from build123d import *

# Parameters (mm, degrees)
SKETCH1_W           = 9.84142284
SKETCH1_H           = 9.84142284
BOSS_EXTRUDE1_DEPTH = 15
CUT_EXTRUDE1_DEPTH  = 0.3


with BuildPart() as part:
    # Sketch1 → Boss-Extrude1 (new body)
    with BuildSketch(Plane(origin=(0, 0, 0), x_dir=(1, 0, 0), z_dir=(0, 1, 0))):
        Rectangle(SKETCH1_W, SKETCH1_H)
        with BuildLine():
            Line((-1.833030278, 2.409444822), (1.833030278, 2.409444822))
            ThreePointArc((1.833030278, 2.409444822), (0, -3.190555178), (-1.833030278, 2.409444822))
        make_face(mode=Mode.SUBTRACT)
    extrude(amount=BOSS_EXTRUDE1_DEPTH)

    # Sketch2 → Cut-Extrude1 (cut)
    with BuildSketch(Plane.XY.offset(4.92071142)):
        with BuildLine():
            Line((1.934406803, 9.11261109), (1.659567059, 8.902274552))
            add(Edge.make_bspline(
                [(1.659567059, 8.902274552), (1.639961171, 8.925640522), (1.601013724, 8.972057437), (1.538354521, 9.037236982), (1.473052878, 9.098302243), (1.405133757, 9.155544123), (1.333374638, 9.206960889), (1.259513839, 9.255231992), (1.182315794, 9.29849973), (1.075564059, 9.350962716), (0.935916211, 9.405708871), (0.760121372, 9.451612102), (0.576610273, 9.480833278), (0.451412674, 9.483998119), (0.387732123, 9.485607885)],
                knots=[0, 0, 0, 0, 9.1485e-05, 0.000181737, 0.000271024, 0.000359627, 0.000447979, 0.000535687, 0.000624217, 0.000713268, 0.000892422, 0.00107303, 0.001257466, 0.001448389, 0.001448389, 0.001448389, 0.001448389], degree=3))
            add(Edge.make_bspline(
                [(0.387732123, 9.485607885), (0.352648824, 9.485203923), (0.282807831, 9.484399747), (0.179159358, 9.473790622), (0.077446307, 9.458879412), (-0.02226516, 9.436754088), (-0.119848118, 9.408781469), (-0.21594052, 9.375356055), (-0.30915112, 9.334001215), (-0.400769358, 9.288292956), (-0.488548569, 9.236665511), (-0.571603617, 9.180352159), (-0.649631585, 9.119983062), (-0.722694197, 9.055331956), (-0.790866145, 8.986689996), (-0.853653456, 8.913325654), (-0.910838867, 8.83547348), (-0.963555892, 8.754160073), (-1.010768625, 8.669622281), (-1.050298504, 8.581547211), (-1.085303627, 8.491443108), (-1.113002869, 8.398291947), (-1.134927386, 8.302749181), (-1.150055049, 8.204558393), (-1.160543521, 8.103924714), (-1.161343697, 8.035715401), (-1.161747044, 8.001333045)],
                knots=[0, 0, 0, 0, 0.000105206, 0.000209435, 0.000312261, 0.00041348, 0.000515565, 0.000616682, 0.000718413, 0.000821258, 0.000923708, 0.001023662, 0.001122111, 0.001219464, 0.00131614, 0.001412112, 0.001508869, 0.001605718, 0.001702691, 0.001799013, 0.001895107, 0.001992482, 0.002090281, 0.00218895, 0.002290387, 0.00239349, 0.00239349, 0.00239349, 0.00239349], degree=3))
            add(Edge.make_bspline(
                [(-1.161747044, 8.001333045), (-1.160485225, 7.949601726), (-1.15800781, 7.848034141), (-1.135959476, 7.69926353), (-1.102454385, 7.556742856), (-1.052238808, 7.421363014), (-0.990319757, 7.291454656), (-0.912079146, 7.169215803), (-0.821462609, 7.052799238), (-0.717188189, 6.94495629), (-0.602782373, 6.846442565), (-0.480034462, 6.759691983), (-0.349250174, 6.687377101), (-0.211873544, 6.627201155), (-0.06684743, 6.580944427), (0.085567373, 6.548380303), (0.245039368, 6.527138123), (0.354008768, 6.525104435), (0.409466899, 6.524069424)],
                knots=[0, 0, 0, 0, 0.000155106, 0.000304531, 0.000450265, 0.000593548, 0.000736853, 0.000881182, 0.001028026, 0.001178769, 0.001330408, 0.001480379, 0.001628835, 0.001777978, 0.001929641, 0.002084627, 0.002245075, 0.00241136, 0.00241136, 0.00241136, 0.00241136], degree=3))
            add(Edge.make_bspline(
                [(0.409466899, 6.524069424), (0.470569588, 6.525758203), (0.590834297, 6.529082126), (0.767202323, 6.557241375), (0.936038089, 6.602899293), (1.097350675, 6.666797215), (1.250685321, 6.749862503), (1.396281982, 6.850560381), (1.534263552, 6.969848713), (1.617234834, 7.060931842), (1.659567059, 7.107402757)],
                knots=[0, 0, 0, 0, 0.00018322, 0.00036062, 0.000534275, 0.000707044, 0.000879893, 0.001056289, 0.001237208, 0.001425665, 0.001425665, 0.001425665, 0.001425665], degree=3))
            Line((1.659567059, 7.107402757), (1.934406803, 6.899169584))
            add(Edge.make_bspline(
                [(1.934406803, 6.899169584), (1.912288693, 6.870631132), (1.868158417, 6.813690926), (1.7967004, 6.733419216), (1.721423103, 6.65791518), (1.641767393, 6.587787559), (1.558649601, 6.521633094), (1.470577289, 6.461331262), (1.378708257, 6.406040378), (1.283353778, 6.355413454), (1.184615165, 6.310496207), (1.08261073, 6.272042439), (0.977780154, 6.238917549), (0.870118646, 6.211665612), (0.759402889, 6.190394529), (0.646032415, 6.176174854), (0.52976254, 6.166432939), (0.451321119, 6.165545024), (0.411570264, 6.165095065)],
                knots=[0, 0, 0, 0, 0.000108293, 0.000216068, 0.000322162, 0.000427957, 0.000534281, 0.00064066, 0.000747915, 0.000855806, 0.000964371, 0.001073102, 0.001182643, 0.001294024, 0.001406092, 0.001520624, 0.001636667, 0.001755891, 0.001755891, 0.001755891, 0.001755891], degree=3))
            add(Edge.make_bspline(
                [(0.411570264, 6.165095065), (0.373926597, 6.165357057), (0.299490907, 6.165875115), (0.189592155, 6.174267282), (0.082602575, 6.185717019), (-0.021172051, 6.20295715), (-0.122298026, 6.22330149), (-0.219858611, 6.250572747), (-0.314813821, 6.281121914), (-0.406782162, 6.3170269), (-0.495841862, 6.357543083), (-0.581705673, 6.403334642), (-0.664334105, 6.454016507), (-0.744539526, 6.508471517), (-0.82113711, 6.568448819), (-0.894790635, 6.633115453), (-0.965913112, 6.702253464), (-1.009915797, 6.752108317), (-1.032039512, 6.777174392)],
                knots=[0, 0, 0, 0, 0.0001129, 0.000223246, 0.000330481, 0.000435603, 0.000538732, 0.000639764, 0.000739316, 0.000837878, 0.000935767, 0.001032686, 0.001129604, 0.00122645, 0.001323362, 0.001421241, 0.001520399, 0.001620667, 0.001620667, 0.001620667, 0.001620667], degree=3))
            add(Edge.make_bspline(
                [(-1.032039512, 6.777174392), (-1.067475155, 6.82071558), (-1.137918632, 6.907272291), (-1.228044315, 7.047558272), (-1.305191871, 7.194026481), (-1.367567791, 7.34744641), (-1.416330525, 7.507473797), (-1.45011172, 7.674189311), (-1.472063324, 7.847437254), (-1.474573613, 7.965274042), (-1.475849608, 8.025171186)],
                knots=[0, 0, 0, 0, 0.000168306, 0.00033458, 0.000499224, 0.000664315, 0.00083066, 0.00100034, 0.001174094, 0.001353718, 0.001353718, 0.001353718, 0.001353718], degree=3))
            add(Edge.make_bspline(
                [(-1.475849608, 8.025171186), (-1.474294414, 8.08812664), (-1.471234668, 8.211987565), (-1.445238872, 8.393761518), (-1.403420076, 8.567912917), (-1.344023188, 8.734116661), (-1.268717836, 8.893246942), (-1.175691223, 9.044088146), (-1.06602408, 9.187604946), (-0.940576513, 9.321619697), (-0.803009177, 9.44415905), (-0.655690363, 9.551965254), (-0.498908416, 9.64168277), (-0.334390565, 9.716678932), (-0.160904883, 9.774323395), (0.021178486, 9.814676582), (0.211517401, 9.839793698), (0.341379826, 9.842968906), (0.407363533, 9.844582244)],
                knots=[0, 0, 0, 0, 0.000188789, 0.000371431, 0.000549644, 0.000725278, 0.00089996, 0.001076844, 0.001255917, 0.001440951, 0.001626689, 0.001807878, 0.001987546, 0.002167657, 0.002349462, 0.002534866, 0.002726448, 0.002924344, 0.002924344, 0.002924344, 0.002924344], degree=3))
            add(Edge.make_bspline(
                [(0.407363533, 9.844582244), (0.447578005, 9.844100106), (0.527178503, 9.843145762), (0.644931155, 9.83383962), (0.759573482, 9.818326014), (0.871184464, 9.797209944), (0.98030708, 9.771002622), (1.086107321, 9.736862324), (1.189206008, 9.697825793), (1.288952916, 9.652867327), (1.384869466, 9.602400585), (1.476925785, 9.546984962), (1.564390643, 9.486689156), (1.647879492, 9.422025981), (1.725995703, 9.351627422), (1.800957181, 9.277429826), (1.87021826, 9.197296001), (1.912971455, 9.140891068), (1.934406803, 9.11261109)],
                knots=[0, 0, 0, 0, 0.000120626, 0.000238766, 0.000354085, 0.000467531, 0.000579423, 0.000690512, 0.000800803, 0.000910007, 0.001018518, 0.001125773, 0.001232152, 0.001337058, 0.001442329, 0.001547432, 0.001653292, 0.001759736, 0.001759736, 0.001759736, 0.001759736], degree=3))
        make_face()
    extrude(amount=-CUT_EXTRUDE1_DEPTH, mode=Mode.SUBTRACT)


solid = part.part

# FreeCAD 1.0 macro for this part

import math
import FreeCAD as App
import Part
import Sketcher


def add_polygon(sketch, points):
    """Adds a closed chain of lines whose ends are joined by coincident constraints."""
    first, n = sketch.GeometryCount, len(points)
    for a, b in zip(points, points[1:] + points[:1]):
        sketch.addGeometry(Part.LineSegment(App.Vector(*a, 0), App.Vector(*b, 0)), False)
    for i in range(n):
        sketch.addConstraint(Sketcher.Constraint("Coincident", first + i, 2, first + (i + 1) % n, 1))

doc = App.newDocument("Part")
body = doc.addObject("PartDesign::Body", "Body")

# Sketch on XZ plane
sketch1 = body.newObject("Sketcher::SketchObject", "Sketch")
sketch1.AttachmentSupport = (doc.getObject("XZ_Plane"), [""])
sketch1.MapMode = "FlatFace"
add_polygon(sketch1, [(-4.9, -4.9), (-4.9, 4.9), (4.9, 4.9), (4.9, -4.9)])  # lines 0-3
sketch1.addGeometry(Part.ArcOfCircle(Part.Circle(App.Vector(0, 0.1, 0), App.Vector(0, 0, 1), 3.1), math.radians(-54), math.radians(234)), False)  # 4
sketch1.addGeometry(Part.LineSegment(App.Vector(-1.8, -2.4, 0), App.Vector(1.8, -2.4, 0)), False)  # 5
sketch1.addConstraint(Sketcher.Constraint("Coincident", 4, 1, 5, 2))
sketch1.addConstraint(Sketcher.Constraint("Coincident", 5, 1, 4, 2))
sketch1.addConstraint(Sketcher.Constraint("Vertical", 0))
sketch1.addConstraint(Sketcher.Constraint("Horizontal", 1))
sketch1.addConstraint(Sketcher.Constraint("Vertical", 2))
sketch1.addConstraint(Sketcher.Constraint("Horizontal", 3))
sketch1.addConstraint(Sketcher.Constraint("Horizontal", 5))
sketch1.addConstraint(Sketcher.Constraint("Symmetric", 0, 2, 2, 2, -1, 1))
sketch1.addConstraint(Sketcher.Constraint("PointOnObject", 4, 3, -2))
sketch1.addConstraint(Sketcher.Constraint("Equal", 3, 0))
sketch1.addConstraint(Sketcher.Constraint("Radius", 4, 3.1))
sketch1.addConstraint(Sketcher.Constraint("DistanceY", 4, 1, 4, 3, 2.5))
sketch1.addConstraint(Sketcher.Constraint("DistanceX", 1, 1, 1, 2, 9.841423))
sketch1.addConstraint(Sketcher.Constraint("DistanceY", -1, 1, 4, 3, 0.090555))
pad1 = body.newObject("PartDesign::Pad", "Pad")
pad1.Profile = sketch1
pad1.Length = 15
pad1.Reversed = True

# Sketch on XY plane
sketch2 = body.newObject("Sketcher::SketchObject", "Sketch001")
sketch2.AttachmentSupport = (doc.getObject("XY_Plane"), [""])
sketch2.MapMode = "FlatFace"
sketch2.AttachmentOffset = App.Placement(App.Vector(0, 0, 4.920711), App.Rotation())
sketch2.addGeometry(Part.LineSegment(App.Vector(1.659567, 8.902275, 0), App.Vector(1.934407, 9.112611, 0)), False)
sketch2.addGeometry(Part.BSplineCurve([App.Vector(0.407364, 9.844582, 0), App.Vector(0.447578, 9.8441, 0), App.Vector(0.527179, 9.843146, 0), App.Vector(0.644931, 9.83384, 0), App.Vector(0.759573, 9.818326, 0), App.Vector(0.871184, 9.79721, 0), App.Vector(0.980307, 9.771003, 0), App.Vector(1.086107, 9.736862, 0), App.Vector(1.189206, 9.697826, 0), App.Vector(1.288953, 9.652867, 0), App.Vector(1.384869, 9.602401, 0), App.Vector(1.476926, 9.546985, 0), App.Vector(1.564391, 9.486689, 0), App.Vector(1.647879, 9.422026, 0), App.Vector(1.725996, 9.351627, 0), App.Vector(1.800957, 9.27743, 0), App.Vector(1.870218, 9.197296, 0), App.Vector(1.912971, 9.140891, 0), App.Vector(1.934407, 9.112611, 0)], [4, 1, 1, 1, 1, 1, 1, 1, 1, 1, 1, 1, 1, 1, 1, 1, 4], [0, 0.000120626, 0.000238766, 0.000354085, 0.000467531, 0.000579423, 0.000690512, 0.000800803, 0.000910007, 0.001018518, 0.001125773, 0.001232152, 0.001337058, 0.001442329, 0.001547432, 0.001653292, 0.001759736], False, 3, [1, 1, 1, 1, 1, 1, 1, 1, 1, 1, 1, 1, 1, 1, 1, 1, 1, 1, 1], False), False)
sketch2.addGeometry(Part.BSplineCurve([App.Vector(-1.47585, 8.025171, 0), App.Vector(-1.474294, 8.088127, 0), App.Vector(-1.471235, 8.211988, 0), App.Vector(-1.445239, 8.393762, 0), App.Vector(-1.40342, 8.567913, 0), App.Vector(-1.344023, 8.734117, 0), App.Vector(-1.268718, 8.893247, 0), App.Vector(-1.175691, 9.044088, 0), App.Vector(-1.066024, 9.187605, 0), App.Vector(-0.940577, 9.32162, 0), App.Vector(-0.803009, 9.444159, 0), App.Vector(-0.65569, 9.551965, 0), App.Vector(-0.498908, 9.641683, 0), App.Vector(-0.334391, 9.716679, 0), App.Vector(-0.160905, 9.774323, 0), App.Vector(0.021178, 9.814677, 0), App.Vector(0.211517, 9.839794, 0), App.Vector(0.34138, 9.842969, 0), App.Vector(0.407364, 9.844582, 0)], [4, 1, 1, 1, 1, 1, 1, 1, 1, 1, 1, 1, 1, 1, 1, 1, 4], [0, 0.000188789, 0.000371431, 0.000549644, 0.000725278, 0.00089996, 0.001076844, 0.001255917, 0.001440951, 0.001626689, 0.001807878, 0.001987546, 0.002167657, 0.002349462, 0.002534866, 0.002726448, 0.002924344], False, 3, [1, 1, 1, 1, 1, 1, 1, 1, 1, 1, 1, 1, 1, 1, 1, 1, 1, 1, 1], False), False)
sketch2.addGeometry(Part.BSplineCurve([App.Vector(-1.03204, 6.777174, 0), App.Vector(-1.067475, 6.820716, 0), App.Vector(-1.137919, 6.907272, 0), App.Vector(-1.228044, 7.047558, 0), App.Vector(-1.305192, 7.194026, 0), App.Vector(-1.367568, 7.347446, 0), App.Vector(-1.416331, 7.507474, 0), App.Vector(-1.450112, 7.674189, 0), App.Vector(-1.472063, 7.847437, 0), App.Vector(-1.474574, 7.965274, 0), App.Vector(-1.47585, 8.025171, 0)], [4, 1, 1, 1, 1, 1, 1, 1, 4], [0, 0.000168306, 0.00033458, 0.000499224, 0.000664315, 0.00083066, 0.00100034, 0.001174094, 0.001353718], False, 3, [1, 1, 1, 1, 1, 1, 1, 1, 1, 1, 1], False), False)
sketch2.addGeometry(Part.BSplineCurve([App.Vector(0.41157, 6.165095, 0), App.Vector(0.373927, 6.165357, 0), App.Vector(0.299491, 6.165875, 0), App.Vector(0.189592, 6.174267, 0), App.Vector(0.082603, 6.185717, 0), App.Vector(-0.021172, 6.202957, 0), App.Vector(-0.122298, 6.223301, 0), App.Vector(-0.219859, 6.250573, 0), App.Vector(-0.314814, 6.281122, 0), App.Vector(-0.406782, 6.317027, 0), App.Vector(-0.495842, 6.357543, 0), App.Vector(-0.581706, 6.403335, 0), App.Vector(-0.664334, 6.454017, 0), App.Vector(-0.74454, 6.508472, 0), App.Vector(-0.821137, 6.568449, 0), App.Vector(-0.894791, 6.633115, 0), App.Vector(-0.965913, 6.702253, 0), App.Vector(-1.009916, 6.752108, 0), App.Vector(-1.03204, 6.777174, 0)], [4, 1, 1, 1, 1, 1, 1, 1, 1, 1, 1, 1, 1, 1, 1, 1, 4], [0, 0.0001129, 0.000223246, 0.000330481, 0.000435603, 0.000538732, 0.000639764, 0.000739316, 0.000837878, 0.000935767, 0.001032686, 0.001129604, 0.00122645, 0.001323362, 0.001421241, 0.001520399, 0.001620667], False, 3, [1, 1, 1, 1, 1, 1, 1, 1, 1, 1, 1, 1, 1, 1, 1, 1, 1, 1, 1], False), False)
sketch2.addGeometry(Part.BSplineCurve([App.Vector(1.934407, 6.89917, 0), App.Vector(1.912289, 6.870631, 0), App.Vector(1.868158, 6.813691, 0), App.Vector(1.7967, 6.733419, 0), App.Vector(1.721423, 6.657915, 0), App.Vector(1.641767, 6.587788, 0), App.Vector(1.55865, 6.521633, 0), App.Vector(1.470577, 6.461331, 0), App.Vector(1.378708, 6.40604, 0), App.Vector(1.283354, 6.355413, 0), App.Vector(1.184615, 6.310496, 0), App.Vector(1.082611, 6.272042, 0), App.Vector(0.97778, 6.238918, 0), App.Vector(0.870119, 6.211666, 0), App.Vector(0.759403, 6.190395, 0), App.Vector(0.646032, 6.176175, 0), App.Vector(0.529763, 6.166433, 0), App.Vector(0.451321, 6.165545, 0), App.Vector(0.41157, 6.165095, 0)], [4, 1, 1, 1, 1, 1, 1, 1, 1, 1, 1, 1, 1, 1, 1, 1, 4], [0, 0.000108293, 0.000216068, 0.000322162, 0.000427957, 0.000534281, 0.00064066, 0.000747915, 0.000855806, 0.000964371, 0.001073102, 0.001182643, 0.001294024, 0.001406092, 0.001520624, 0.001636667, 0.001755891], False, 3, [1, 1, 1, 1, 1, 1, 1, 1, 1, 1, 1, 1, 1, 1, 1, 1, 1, 1, 1], False), False)
sketch2.addGeometry(Part.LineSegment(App.Vector(1.934407, 6.89917, 0), App.Vector(1.659567, 7.107403, 0)), False)
sketch2.addGeometry(Part.BSplineCurve([App.Vector(0.409467, 6.524069, 0), App.Vector(0.47057, 6.525758, 0), App.Vector(0.590834, 6.529082, 0), App.Vector(0.767202, 6.557241, 0), App.Vector(0.936038, 6.602899, 0), App.Vector(1.097351, 6.666797, 0), App.Vector(1.250685, 6.749863, 0), App.Vector(1.396282, 6.85056, 0), App.Vector(1.534264, 6.969849, 0), App.Vector(1.617235, 7.060932, 0), App.Vector(1.659567, 7.107403, 0)], [4, 1, 1, 1, 1, 1, 1, 1, 4], [0, 0.00018322, 0.00036062, 0.000534275, 0.000707044, 0.000879893, 0.001056289, 0.001237208, 0.001425665], False, 3, [1, 1, 1, 1, 1, 1, 1, 1, 1, 1, 1], False), False)
sketch2.addGeometry(Part.BSplineCurve([App.Vector(-1.161747, 8.001333, 0), App.Vector(-1.160485, 7.949602, 0), App.Vector(-1.158008, 7.848034, 0), App.Vector(-1.135959, 7.699264, 0), App.Vector(-1.102454, 7.556743, 0), App.Vector(-1.052239, 7.421363, 0), App.Vector(-0.99032, 7.291455, 0), App.Vector(-0.912079, 7.169216, 0), App.Vector(-0.821463, 7.052799, 0), App.Vector(-0.717188, 6.944956, 0), App.Vector(-0.602782, 6.846443, 0), App.Vector(-0.480034, 6.759692, 0), App.Vector(-0.34925, 6.687377, 0), App.Vector(-0.211874, 6.627201, 0), App.Vector(-0.066847, 6.580944, 0), App.Vector(0.085567, 6.54838, 0), App.Vector(0.245039, 6.527138, 0), App.Vector(0.354009, 6.525104, 0), App.Vector(0.409467, 6.524069, 0)], [4, 1, 1, 1, 1, 1, 1, 1, 1, 1, 1, 1, 1, 1, 1, 1, 4], [0, 0.000155106, 0.000304531, 0.000450265, 0.000593548, 0.000736853, 0.000881182, 0.001028026, 0.001178769, 0.001330408, 0.001480379, 0.001628835, 0.001777978, 0.001929641, 0.002084627, 0.002245075, 0.00241136], False, 3, [1, 1, 1, 1, 1, 1, 1, 1, 1, 1, 1, 1, 1, 1, 1, 1, 1, 1, 1], False), False)
sketch2.addGeometry(Part.BSplineCurve([App.Vector(0.387732, 9.485608, 0), App.Vector(0.352649, 9.485204, 0), App.Vector(0.282808, 9.4844, 0), App.Vector(0.179159, 9.473791, 0), App.Vector(0.077446, 9.458879, 0), App.Vector(-0.022265, 9.436754, 0), App.Vector(-0.119848, 9.408781, 0), App.Vector(-0.215941, 9.375356, 0), App.Vector(-0.309151, 9.334001, 0), App.Vector(-0.400769, 9.288293, 0), App.Vector(-0.488549, 9.236666, 0), App.Vector(-0.571604, 9.180352, 0), App.Vector(-0.649632, 9.119983, 0), App.Vector(-0.722694, 9.055332, 0), App.Vector(-0.790866, 8.98669, 0), App.Vector(-0.853653, 8.913326, 0), App.Vector(-0.910839, 8.835473, 0), App.Vector(-0.963556, 8.75416, 0), App.Vector(-1.010769, 8.669622, 0), App.Vector(-1.050299, 8.581547, 0), App.Vector(-1.085304, 8.491443, 0), App.Vector(-1.113003, 8.398292, 0), App.Vector(-1.134927, 8.302749, 0), App.Vector(-1.150055, 8.204558, 0), App.Vector(-1.160544, 8.103925, 0), App.Vector(-1.161344, 8.035715, 0), App.Vector(-1.161747, 8.001333, 0)], [4, 1, 1, 1, 1, 1, 1, 1, 1, 1, 1, 1, 1, 1, 1, 1, 1, 1, 1, 1, 1, 1, 1, 1, 4], [0, 0.000105206, 0.000209435, 0.000312261, 0.00041348, 0.000515565, 0.000616682, 0.000718413, 0.000821258, 0.000923708, 0.001023662, 0.001122111, 0.001219464, 0.00131614, 0.001412112, 0.001508869, 0.001605718, 0.001702691, 0.001799013, 0.001895107, 0.001992482, 0.002090281, 0.00218895, 0.002290387, 0.00239349], False, 3, [1, 1, 1, 1, 1, 1, 1, 1, 1, 1, 1, 1, 1, 1, 1, 1, 1, 1, 1, 1, 1, 1, 1, 1, 1, 1, 1], False), False)
sketch2.addGeometry(Part.BSplineCurve([App.Vector(1.659567, 8.902275, 0), App.Vector(1.639961, 8.925641, 0), App.Vector(1.601014, 8.972057, 0), App.Vector(1.538355, 9.037237, 0), App.Vector(1.473053, 9.098302, 0), App.Vector(1.405134, 9.155544, 0), App.Vector(1.333375, 9.206961, 0), App.Vector(1.259514, 9.255232, 0), App.Vector(1.182316, 9.2985, 0), App.Vector(1.075564, 9.350963, 0), App.Vector(0.935916, 9.405709, 0), App.Vector(0.760121, 9.451612, 0), App.Vector(0.57661, 9.480833, 0), App.Vector(0.451413, 9.483998, 0), App.Vector(0.387732, 9.485608, 0)], [4, 1, 1, 1, 1, 1, 1, 1, 1, 1, 1, 1, 4], [0, 0.000091485, 0.000181737, 0.000271024, 0.000359627, 0.000447979, 0.000535687, 0.000624217, 0.000713268, 0.000892422, 0.00107303, 0.001257466, 0.001448389], False, 3, [1, 1, 1, 1, 1, 1, 1, 1, 1, 1, 1, 1, 1, 1, 1], False), False)
sketch2.addConstraint(Sketcher.Constraint("Block", 1))
sketch2.addConstraint(Sketcher.Constraint("Block", 2))
sketch2.addConstraint(Sketcher.Constraint("Block", 3))
sketch2.addConstraint(Sketcher.Constraint("Block", 4))
sketch2.addConstraint(Sketcher.Constraint("Block", 5))
sketch2.addConstraint(Sketcher.Constraint("Block", 7))
sketch2.addConstraint(Sketcher.Constraint("Block", 8))
sketch2.addConstraint(Sketcher.Constraint("Block", 9))
sketch2.addConstraint(Sketcher.Constraint("Block", 10))
sketch2.addConstraint(Sketcher.Constraint("Coincident", 0, 2, 1, 2))
sketch2.addConstraint(Sketcher.Constraint("Coincident", 5, 1, 6, 1))
sketch2.addConstraint(Sketcher.Constraint("Coincident", 6, 2, 7, 2))
sketch2.addConstraint(Sketcher.Constraint("Coincident", 10, 1, 0, 1))
pocket1 = body.newObject("PartDesign::Pocket", "Pocket")
pocket1.Profile = sketch2
pocket1.Length = 0.3

doc.recompute()
